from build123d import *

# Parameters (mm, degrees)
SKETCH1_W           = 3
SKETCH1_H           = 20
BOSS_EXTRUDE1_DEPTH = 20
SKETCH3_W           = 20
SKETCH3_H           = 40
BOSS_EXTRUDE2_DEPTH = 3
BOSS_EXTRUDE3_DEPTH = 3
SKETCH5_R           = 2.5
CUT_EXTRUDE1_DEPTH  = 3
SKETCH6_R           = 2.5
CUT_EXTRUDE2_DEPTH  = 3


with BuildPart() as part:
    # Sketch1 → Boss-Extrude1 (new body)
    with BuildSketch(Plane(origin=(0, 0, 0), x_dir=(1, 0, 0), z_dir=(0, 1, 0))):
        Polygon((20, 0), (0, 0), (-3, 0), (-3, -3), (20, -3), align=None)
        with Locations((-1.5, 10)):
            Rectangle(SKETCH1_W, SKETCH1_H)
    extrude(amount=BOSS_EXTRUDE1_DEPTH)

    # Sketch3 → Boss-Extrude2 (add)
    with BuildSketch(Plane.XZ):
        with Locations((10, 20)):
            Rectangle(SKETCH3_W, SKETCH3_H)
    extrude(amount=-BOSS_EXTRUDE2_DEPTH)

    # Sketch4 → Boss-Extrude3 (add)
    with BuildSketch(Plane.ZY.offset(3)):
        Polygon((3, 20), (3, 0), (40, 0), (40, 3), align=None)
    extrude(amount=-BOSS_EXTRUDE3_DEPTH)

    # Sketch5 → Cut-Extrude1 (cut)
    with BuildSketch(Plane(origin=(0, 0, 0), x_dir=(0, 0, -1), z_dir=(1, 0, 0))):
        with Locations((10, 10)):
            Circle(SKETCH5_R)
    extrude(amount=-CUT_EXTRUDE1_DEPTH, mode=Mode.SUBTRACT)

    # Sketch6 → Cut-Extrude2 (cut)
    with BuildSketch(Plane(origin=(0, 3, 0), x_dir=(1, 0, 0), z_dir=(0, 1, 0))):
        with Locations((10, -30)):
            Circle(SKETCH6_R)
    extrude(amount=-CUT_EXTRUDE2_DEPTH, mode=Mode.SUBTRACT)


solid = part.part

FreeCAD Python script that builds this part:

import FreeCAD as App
import Part
import Sketcher
from FreeCAD import Vector

doc = App.newDocument("Part")
body = doc.addObject("PartDesign::Body", "Body")

# Sketch on XZ plane
sketch1 = doc.addObject("Sketcher::SketchObject", "Sketch")
body.addObject(sketch1)
sketch1.AttachmentSupport = (doc.XZ_Plane, [""])
sketch1.MapMode = "FlatFace"
sketch1.addGeometry([
    Part.LineSegment(Vector(20, 0, 0), Vector(0, 0, 0)),  # 0
    Part.LineSegment(Vector(0, 0, 0), Vector(0, -20, 0)),  # 1
    Part.LineSegment(Vector(0, -20, 0), Vector(-3, -20, 0)),  # 2
    Part.LineSegment(Vector(-3, -20, 0), Vector(-3, 3, 0)),  # 3
    Part.LineSegment(Vector(-3, 3, 0), Vector(20, 3, 0)),  # 4
    Part.LineSegment(Vector(20, 3, 0), Vector(20, 0, 0)),  # 5
], False)
sketch1.addConstraint([
    Sketcher.Constraint("Coincident", 0, 2, 1, 1),
    Sketcher.Constraint("Coincident", 1, 2, 2, 1),
    Sketcher.Constraint("Coincident", 2, 2, 3, 1),
    Sketcher.Constraint("Coincident", 3, 2, 4, 1),
    Sketcher.Constraint("Coincident", 4, 2, 5, 1),
    Sketcher.Constraint("Coincident", 5, 2, 0, 1),
    Sketcher.Constraint("Horizontal", 0),
    Sketcher.Constraint("Vertical", 1),
    Sketcher.Constraint("Horizontal", 2),
    Sketcher.Constraint("Vertical", 3),
    Sketcher.Constraint("Horizontal", 4),
    Sketcher.Constraint("Vertical", 5),
    Sketcher.Constraint("Coincident", 0, 2, -1, 1),
    Sketcher.Constraint("Equal", 0, 1),
    Sketcher.Constraint("Equal", 4, 3),
    Sketcher.Constraint("DistanceX", 0, 2, 0, 1, 20.0),
    Sketcher.Constraint("DistanceX", 2, 2, 2, 1, 3.0),
])
pad1 = doc.addObject("PartDesign::Pad", "Pad")
body.addObject(pad1)
pad1.Profile = sketch1
pad1.Length = 20
pad1.Reversed = True

# Sketch on XZ plane
sketch2 = doc.addObject("Sketcher::SketchObject", "Sketch001")
body.addObject(sketch2)
sketch2.AttachmentSupport = (doc.XZ_Plane, [""])
sketch2.MapMode = "FlatFace"
sketch2.addGeometry([
    Part.LineSegment(Vector(0, 40, 0), Vector(0, 0, 0)),
    Part.LineSegment(Vector(0, 0, 0), Vector(20, 0, 0)),
    Part.LineSegment(Vector(20, 0, 0), Vector(20, 40, 0)),
    Part.LineSegment(Vector(20, 40, 0), Vector(0, 40, 0)),
], False)
sketch2.addConstraint([
    Sketcher.Constraint("Coincident", 0, 2, 1, 1),
    Sketcher.Constraint("Coincident", 1, 2, 2, 1),
    Sketcher.Constraint("Coincident", 2, 2, 3, 1),
    Sketcher.Constraint("Coincident", 3, 2, 0, 1),
    Sketcher.Constraint("Vertical", 0),
    Sketcher.Constraint("Horizontal", 1),
    Sketcher.Constraint("Vertical", 2),
    Sketcher.Constraint("Horizontal", 3),
    Sketcher.Constraint("Coincident", 0, 2, -1, 1),
    Sketcher.Constraint("DistanceX", 1, 1, 1, 2, 20.0),
    Sketcher.Constraint("DistanceY", 0, 2, 0, 1, 40.0),
])
pad2 = doc.addObject("PartDesign::Pad", "Pad001")
body.addObject(pad2)
pad2.Profile = sketch2
pad2.Length = 3
pad2.Reversed = True

# Sketch on YZ plane
sketch3 = doc.addObject("Sketcher::SketchObject", "Sketch002")
body.addObject(sketch3)
sketch3.AttachmentSupport = (doc.YZ_Plane, [""])
sketch3.MapMode = "FlatFace"
sketch3.AttachmentOffset = App.Placement(Vector(0, 0, -3), App.Rotation())
sketch3.addGeometry([
    Part.LineSegment(Vector(20, 3, 0), Vector(0, 3, 0)),
    Part.LineSegment(Vector(0, 3, 0), Vector(0, 40, 0)),
    Part.LineSegment(Vector(0, 40, 0), Vector(3, 40, 0)),
    Part.LineSegment(Vector(3, 40, 0), Vector(20, 3, 0)),
], False)
sketch3.addConstraint([
    Sketcher.Constraint("Coincident", 0, 2, 1, 1),
    Sketcher.Constraint("Coincident", 1, 2, 2, 1),
    Sketcher.Constraint("Coincident", 2, 2, 3, 1),
    Sketcher.Constraint("Coincident", 3, 2, 0, 1),
    Sketcher.Constraint("Horizontal", 0),
    Sketcher.Constraint("Vertical", 1),
    Sketcher.Constraint("Horizontal", 2),
    Sketcher.Constraint("PointOnObject", 0, 2, -2),
    Sketcher.Constraint("DistanceX", 0, 2, 0, 1, 20.0),
    Sketcher.Constraint("DistanceX", 2, 1, 2, 2, 3.0),
    Sketcher.Constraint("DistanceY", 1, 1, 1, 2, 37.0),
    Sketcher.Constraint("DistanceY", -1, 1, 0, 2, 3.0),
])
pad3 = doc.addObject("PartDesign::Pad", "Pad002")
body.addObject(pad3)
pad3.Profile = sketch3
pad3.Length = 3

# Sketch on YZ plane
sketch4 = doc.addObject("Sketcher::SketchObject", "Sketch003")
body.addObject(sketch4)
sketch4.AttachmentSupport = (doc.YZ_Plane, [""])
sketch4.MapMode = "FlatFace"
sketch4.addGeometry(Part.Circle(Vector(10, -10, 0), Vector(0, 0, 1), 2.5), False)
sketch4.addConstraint([
    Sketcher.Constraint("Diameter", 0, 5.0),
    Sketcher.Constraint("DistanceX", -1, 1, 0, 3, 10.0),
    Sketcher.Constraint("DistanceY", 0, 3, -1, 1, 10.0),
])
pocket1 = doc.addObject("PartDesign::Pocket", "Pocket")
body.addObject(pocket1)
pocket1.Profile = sketch4
pocket1.Length = 3

# Sketch on XZ plane
sketch5 = doc.addObject("Sketcher::SketchObject", "Sketch004")
body.addObject(sketch5)
sketch5.AttachmentSupport = (doc.XZ_Plane, [""])
sketch5.MapMode = "FlatFace"
sketch5.AttachmentOffset = App.Placement(Vector(0, 0, -3), App.Rotation())
sketch5.addGeometry(Part.Circle(Vector(10, 30, 0), Vector(0, 0, 1), 2.5), False)
sketch5.addConstraint([
    Sketcher.Constraint("Diameter", 0, 5.0),
    Sketcher.Constraint("DistanceX", -1, 1, 0, 3, 10.0),
    Sketcher.Constraint("DistanceY", -1, 1, 0, 3, 30.0),
])
pocket2 = doc.addObject("PartDesign::Pocket", "Pocket001")
body.addObject(pocket2)
pocket2.Profile = sketch5
pocket2.Length = 3
pocket2.Reversed = True

doc.recompute()
